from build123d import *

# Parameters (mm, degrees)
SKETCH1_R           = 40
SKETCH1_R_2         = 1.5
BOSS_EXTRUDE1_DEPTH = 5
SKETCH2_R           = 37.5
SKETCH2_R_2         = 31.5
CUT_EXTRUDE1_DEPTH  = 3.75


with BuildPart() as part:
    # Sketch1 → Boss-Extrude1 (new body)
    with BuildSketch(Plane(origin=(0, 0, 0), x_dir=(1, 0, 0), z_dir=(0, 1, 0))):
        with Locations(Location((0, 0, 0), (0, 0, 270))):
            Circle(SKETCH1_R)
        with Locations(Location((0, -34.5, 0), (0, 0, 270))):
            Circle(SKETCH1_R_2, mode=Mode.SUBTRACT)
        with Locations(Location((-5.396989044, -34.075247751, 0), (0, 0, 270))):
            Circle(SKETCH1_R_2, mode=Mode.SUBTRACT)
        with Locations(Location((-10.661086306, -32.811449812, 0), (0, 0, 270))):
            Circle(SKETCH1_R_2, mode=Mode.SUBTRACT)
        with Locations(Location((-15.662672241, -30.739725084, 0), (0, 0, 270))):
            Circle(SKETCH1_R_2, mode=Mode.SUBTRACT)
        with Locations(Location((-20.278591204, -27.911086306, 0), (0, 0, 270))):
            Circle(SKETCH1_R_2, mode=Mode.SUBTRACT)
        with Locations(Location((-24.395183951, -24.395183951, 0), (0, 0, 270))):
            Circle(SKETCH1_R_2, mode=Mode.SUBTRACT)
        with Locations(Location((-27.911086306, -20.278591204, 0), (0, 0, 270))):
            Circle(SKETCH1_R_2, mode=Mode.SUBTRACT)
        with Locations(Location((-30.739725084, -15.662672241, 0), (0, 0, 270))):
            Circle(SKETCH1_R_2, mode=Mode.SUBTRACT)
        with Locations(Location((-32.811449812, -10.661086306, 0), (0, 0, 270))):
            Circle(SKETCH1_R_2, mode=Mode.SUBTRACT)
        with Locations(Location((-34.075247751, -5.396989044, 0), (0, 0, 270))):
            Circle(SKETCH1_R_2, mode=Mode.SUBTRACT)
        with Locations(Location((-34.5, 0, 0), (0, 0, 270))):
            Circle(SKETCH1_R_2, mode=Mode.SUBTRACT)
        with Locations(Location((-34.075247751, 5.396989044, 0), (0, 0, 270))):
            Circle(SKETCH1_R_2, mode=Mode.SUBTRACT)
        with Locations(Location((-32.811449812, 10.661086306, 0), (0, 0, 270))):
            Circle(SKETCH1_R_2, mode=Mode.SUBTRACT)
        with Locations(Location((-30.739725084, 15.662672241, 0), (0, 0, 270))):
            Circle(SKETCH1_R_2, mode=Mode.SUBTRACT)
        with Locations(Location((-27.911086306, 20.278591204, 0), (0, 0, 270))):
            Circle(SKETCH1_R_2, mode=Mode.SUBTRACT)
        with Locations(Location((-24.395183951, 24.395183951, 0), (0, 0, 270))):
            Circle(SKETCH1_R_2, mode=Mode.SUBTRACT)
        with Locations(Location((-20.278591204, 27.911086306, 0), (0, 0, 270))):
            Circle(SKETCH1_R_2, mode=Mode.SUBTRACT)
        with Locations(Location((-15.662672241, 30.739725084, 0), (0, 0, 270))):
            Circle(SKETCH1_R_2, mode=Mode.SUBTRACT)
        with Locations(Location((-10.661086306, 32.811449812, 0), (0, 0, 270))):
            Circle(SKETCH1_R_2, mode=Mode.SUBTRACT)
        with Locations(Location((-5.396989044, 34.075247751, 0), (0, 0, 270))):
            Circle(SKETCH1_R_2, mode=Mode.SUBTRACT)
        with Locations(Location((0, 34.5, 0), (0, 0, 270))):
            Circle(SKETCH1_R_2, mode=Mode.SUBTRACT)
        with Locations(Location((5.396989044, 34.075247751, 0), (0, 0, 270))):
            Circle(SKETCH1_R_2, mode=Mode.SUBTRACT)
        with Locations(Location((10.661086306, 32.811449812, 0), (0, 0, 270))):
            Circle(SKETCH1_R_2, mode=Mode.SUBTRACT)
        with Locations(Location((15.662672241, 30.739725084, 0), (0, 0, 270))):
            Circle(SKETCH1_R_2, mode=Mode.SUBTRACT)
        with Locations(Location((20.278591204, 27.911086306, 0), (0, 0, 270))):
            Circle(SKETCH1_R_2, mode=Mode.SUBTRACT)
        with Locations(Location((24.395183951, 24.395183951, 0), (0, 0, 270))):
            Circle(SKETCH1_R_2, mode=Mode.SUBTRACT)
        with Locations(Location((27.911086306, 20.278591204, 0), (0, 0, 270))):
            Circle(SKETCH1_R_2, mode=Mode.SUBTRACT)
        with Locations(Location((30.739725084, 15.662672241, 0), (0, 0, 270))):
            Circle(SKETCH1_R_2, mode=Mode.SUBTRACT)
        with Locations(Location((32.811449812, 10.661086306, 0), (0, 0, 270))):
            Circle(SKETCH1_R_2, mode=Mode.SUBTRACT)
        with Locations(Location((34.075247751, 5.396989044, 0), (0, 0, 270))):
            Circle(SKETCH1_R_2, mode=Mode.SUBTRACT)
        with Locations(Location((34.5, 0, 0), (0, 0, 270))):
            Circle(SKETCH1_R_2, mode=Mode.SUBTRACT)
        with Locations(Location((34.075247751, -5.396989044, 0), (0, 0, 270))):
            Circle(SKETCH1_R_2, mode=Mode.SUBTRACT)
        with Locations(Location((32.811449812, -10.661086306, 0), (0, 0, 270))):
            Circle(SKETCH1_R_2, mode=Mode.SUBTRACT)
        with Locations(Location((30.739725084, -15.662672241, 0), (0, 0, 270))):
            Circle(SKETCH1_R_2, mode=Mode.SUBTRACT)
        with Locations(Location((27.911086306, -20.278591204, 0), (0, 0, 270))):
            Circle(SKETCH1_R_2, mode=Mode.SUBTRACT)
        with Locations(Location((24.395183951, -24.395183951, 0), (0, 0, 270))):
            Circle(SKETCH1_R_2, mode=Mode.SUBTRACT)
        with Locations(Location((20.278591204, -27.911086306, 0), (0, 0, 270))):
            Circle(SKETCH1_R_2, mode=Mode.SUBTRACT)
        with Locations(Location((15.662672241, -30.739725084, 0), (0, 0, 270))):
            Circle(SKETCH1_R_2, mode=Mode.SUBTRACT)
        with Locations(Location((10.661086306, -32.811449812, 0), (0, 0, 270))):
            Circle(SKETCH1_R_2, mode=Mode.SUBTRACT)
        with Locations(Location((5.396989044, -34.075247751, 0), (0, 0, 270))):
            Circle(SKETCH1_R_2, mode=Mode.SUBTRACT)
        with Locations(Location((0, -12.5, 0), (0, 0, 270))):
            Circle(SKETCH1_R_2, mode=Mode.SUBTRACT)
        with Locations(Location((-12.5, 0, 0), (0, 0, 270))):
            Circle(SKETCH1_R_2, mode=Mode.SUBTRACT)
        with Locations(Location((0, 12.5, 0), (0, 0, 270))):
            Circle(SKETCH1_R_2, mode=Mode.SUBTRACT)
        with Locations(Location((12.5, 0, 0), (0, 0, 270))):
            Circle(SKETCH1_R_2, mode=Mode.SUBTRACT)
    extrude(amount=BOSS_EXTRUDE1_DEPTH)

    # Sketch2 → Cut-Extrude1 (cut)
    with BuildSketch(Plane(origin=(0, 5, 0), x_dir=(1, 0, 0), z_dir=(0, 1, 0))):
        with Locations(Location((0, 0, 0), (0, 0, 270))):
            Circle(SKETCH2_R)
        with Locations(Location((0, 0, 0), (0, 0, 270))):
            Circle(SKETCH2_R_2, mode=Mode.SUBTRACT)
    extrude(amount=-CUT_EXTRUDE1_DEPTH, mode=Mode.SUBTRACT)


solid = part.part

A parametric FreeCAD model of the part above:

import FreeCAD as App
import Part
import Sketcher
from FreeCAD import Vector
Q = App.Units.Quantity

doc = App.newDocument("Part")
body = doc.addObject("PartDesign::Body", "Body")

# Sketch on XZ plane
sketch1 = body.newObject("Sketcher::SketchObject", "Sketch")
sketch1.AttachmentSupport = (doc.getObject("XZ_Plane"), [""])
sketch1.MapMode = "FlatFace"
sketch1.addGeometry(Part.Circle(Vector(0, 0, 0), Vector(0, 0, 1), 40), False)
sketch1.addGeometry(Part.Circle(Vector(-27.9, -20.3, 0), Vector(0, 0, 1), 1.5), False)
sketch1.addGeometry(Part.Circle(Vector(-20.3, -27.9, 0), Vector(0, 0, 1), 1.5), False)
sketch1.addGeometry(Part.Circle(Vector(-24.4, -24.4, 0), Vector(0, 0, 1), 1.5), False)
sketch1.addGeometry(Part.Circle(Vector(-32.8, -10.7, 0), Vector(0, 0, 1), 1.5), False)
sketch1.addGeometry(Part.Circle(Vector(-30.7, -15.7, 0), Vector(0, 0, 1), 1.5), False)
sketch1.addGeometry(Part.Circle(Vector(-34.1, -5.4, 0), Vector(0, 0, 1), 1.5), False)
sketch1.addGeometry(Part.Circle(Vector(-15.7, -30.7, 0), Vector(0, 0, 1), 1.5), False)
sketch1.addGeometry(Part.Circle(Vector(-10.7, -32.8, 0), Vector(0, 0, 1), 1.5), False)
sketch1.addGeometry(Part.Circle(Vector(-5.4, -34.1, 0), Vector(0, 0, 1), 1.5), False)
sketch1.addGeometry(Part.Circle(Vector(0, -34.5, 0), Vector(0, 0, 1), 1.5), False)
sketch1.addGeometry(Part.Circle(Vector(0, -12.5, 0), Vector(0, 0, 1), 1.5), False)
sketch1.addGeometry(Part.Circle(Vector(-34.5, 0, 0), Vector(0, 0, 1), 1.5), False)
sketch1.addGeometry(Part.Circle(Vector(-34.1, 5.4, 0), Vector(0, 0, 1), 1.5), False)
sketch1.addGeometry(Part.Circle(Vector(-32.8, 10.7, 0), Vector(0, 0, 1), 1.5), False)
sketch1.addGeometry(Part.Circle(Vector(-30.7, 15.7, 0), Vector(0, 0, 1), 1.5), False)
sketch1.addGeometry(Part.Circle(Vector(-27.9, 20.3, 0), Vector(0, 0, 1), 1.5), False)
sketch1.addGeometry(Part.Circle(Vector(-24.4, 24.4, 0), Vector(0, 0, 1), 1.5), False)
sketch1.addGeometry(Part.Circle(Vector(-20.3, 27.9, 0), Vector(0, 0, 1), 1.5), False)
sketch1.addGeometry(Part.Circle(Vector(-12.5, 0, 0), Vector(0, 0, 1), 1.5), False)
sketch1.addGeometry(Part.Circle(Vector(-15.7, 30.7, 0), Vector(0, 0, 1), 1.5), False)
sketch1.addGeometry(Part.Circle(Vector(-10.7, 32.8, 0), Vector(0, 0, 1), 1.5), False)
sketch1.addGeometry(Part.Circle(Vector(-5.4, 34.1, 0), Vector(0, 0, 1), 1.5), False)
sketch1.addGeometry(Part.Circle(Vector(5.4, -34.1, 0), Vector(0, 0, 1), 1.5), False)
sketch1.addGeometry(Part.Circle(Vector(10.7, -32.8, 0), Vector(0, 0, 1), 1.5), False)
sketch1.addGeometry(Part.Circle(Vector(15.7, -30.7, 0), Vector(0, 0, 1), 1.5), False)
sketch1.addGeometry(Part.Circle(Vector(20.3, -27.9, 0), Vector(0, 0, 1), 1.5), False)
sketch1.addGeometry(Part.Circle(Vector(24.4, -24.4, 0), Vector(0, 0, 1), 1.5), False)
sketch1.addGeometry(Part.Circle(Vector(27.9, -20.3, 0), Vector(0, 0, 1), 1.5), False)
sketch1.addGeometry(Part.Circle(Vector(30.7, -15.7, 0), Vector(0, 0, 1), 1.5), False)
sketch1.addGeometry(Part.Circle(Vector(32.8, -10.7, 0), Vector(0, 0, 1), 1.5), False)
sketch1.addGeometry(Part.Circle(Vector(34.1, -5.4, 0), Vector(0, 0, 1), 1.5), False)
sketch1.addGeometry(Part.Circle(Vector(34.5, 0, 0), Vector(0, 0, 1), 1.5), False)
sketch1.addGeometry(Part.Circle(Vector(0, 12.5, 0), Vector(0, 0, 1), 1.5), False)
sketch1.addGeometry(Part.Circle(Vector(12.5, 0, 0), Vector(0, 0, 1), 1.5), False)
sketch1.addGeometry(Part.Circle(Vector(0, 34.5, 0), Vector(0, 0, 1), 1.5), False)
sketch1.addGeometry(Part.Circle(Vector(5.4, 34.1, 0), Vector(0, 0, 1), 1.5), False)
sketch1.addGeometry(Part.Circle(Vector(10.7, 32.8, 0), Vector(0, 0, 1), 1.5), False)
sketch1.addGeometry(Part.Circle(Vector(15.7, 30.7, 0), Vector(0, 0, 1), 1.5), False)
sketch1.addGeometry(Part.Circle(Vector(34.1, 5.4, 0), Vector(0, 0, 1), 1.5), False)
sketch1.addGeometry(Part.Circle(Vector(30.7, 15.7, 0), Vector(0, 0, 1), 1.5), False)
sketch1.addGeometry(Part.Circle(Vector(32.8, 10.7, 0), Vector(0, 0, 1), 1.5), False)
sketch1.addGeometry(Part.Circle(Vector(24.4, 24.4, 0), Vector(0, 0, 1), 1.5), False)
sketch1.addGeometry(Part.Circle(Vector(20.3, 27.9, 0), Vector(0, 0, 1), 1.5), False)
sketch1.addGeometry(Part.Circle(Vector(27.9, 20.3, 0), Vector(0, 0, 1), 1.5), False)
sketch1.addConstraint(Sketcher.Constraint("Coincident", 0, 3, -1, 1))
sketch1.addConstraint(Sketcher.Constraint("Equal", 1, 2))
sketch1.addConstraint(Sketcher.Constraint("Equal", 2, 3))
sketch1.addConstraint(Sketcher.Constraint("Equal", 3, 4))
sketch1.addConstraint(Sketcher.Constraint("Equal", 4, 5))
sketch1.addConstraint(Sketcher.Constraint("Equal", 5, 6))
sketch1.addConstraint(Sketcher.Constraint("Equal", 6, 7))
sketch1.addConstraint(Sketcher.Constraint("Equal", 7, 8))
sketch1.addConstraint(Sketcher.Constraint("Equal", 8, 9))
sketch1.addConstraint(Sketcher.Constraint("Equal", 9, 10))
sketch1.addConstraint(Sketcher.Constraint("Equal", 10, 11))
sketch1.addConstraint(Sketcher.Constraint("Equal", 11, 12))
sketch1.addConstraint(Sketcher.Constraint("Equal", 12, 13))
sketch1.addConstraint(Sketcher.Constraint("Equal", 13, 14))
sketch1.addConstraint(Sketcher.Constraint("Equal", 14, 15))
sketch1.addConstraint(Sketcher.Constraint("Equal", 15, 16))
sketch1.addConstraint(Sketcher.Constraint("Equal", 16, 17))
sketch1.addConstraint(Sketcher.Constraint("Equal", 17, 18))
sketch1.addConstraint(Sketcher.Constraint("Equal", 18, 19))
sketch1.addConstraint(Sketcher.Constraint("Equal", 19, 20))
sketch1.addConstraint(Sketcher.Constraint("Equal", 20, 21))
sketch1.addConstraint(Sketcher.Constraint("Equal", 21, 22))
sketch1.addConstraint(Sketcher.Constraint("Equal", 22, 23))
sketch1.addConstraint(Sketcher.Constraint("Equal", 23, 24))
sketch1.addConstraint(Sketcher.Constraint("Equal", 24, 25))
sketch1.addConstraint(Sketcher.Constraint("Equal", 25, 26))
sketch1.addConstraint(Sketcher.Constraint("Equal", 26, 27))
sketch1.addConstraint(Sketcher.Constraint("Equal", 27, 28))
sketch1.addConstraint(Sketcher.Constraint("Equal", 28, 29))
sketch1.addConstraint(Sketcher.Constraint("Equal", 29, 30))
sketch1.addConstraint(Sketcher.Constraint("Equal", 30, 31))
sketch1.addConstraint(Sketcher.Constraint("Equal", 31, 32))
sketch1.addConstraint(Sketcher.Constraint("Equal", 32, 33))
sketch1.addConstraint(Sketcher.Constraint("Equal", 33, 34))
sketch1.addConstraint(Sketcher.Constraint("Equal", 34, 35))
sketch1.addConstraint(Sketcher.Constraint("Equal", 35, 36))
sketch1.addConstraint(Sketcher.Constraint("Equal", 36, 37))
sketch1.addConstraint(Sketcher.Constraint("Equal", 37, 38))
sketch1.addConstraint(Sketcher.Constraint("Equal", 38, 39))
sketch1.addConstraint(Sketcher.Constraint("Equal", 39, 40))
sketch1.addConstraint(Sketcher.Constraint("Equal", 40, 41))
sketch1.addConstraint(Sketcher.Constraint("Equal", 41, 42))
sketch1.addConstraint(Sketcher.Constraint("Equal", 42, 43))
sketch1.addConstraint(Sketcher.Constraint("Equal", 43, 44))
sketch1.addConstraint(Sketcher.Constraint("Symmetric", 22, 3, 23, 3, -1, 1))
sketch1.addConstraint(Sketcher.Constraint("Symmetric", 21, 3, 24, 3, -1, 1))
sketch1.addConstraint(Sketcher.Constraint("Symmetric", 20, 3, 25, 3, -1, 1))
sketch1.addConstraint(Sketcher.Constraint("Symmetric", 18, 3, 26, 3, -1, 1))
sketch1.addConstraint(Sketcher.Constraint("Symmetric", 17, 3, 27, 3, -1, 1))
sketch1.addConstraint(Sketcher.Constraint("Symmetric", 16, 3, 28, 3, -1, 1))
sketch1.addConstraint(Sketcher.Constraint("Symmetric", 15, 3, 29, 3, -1, 1))
sketch1.addConstraint(Sketcher.Constraint("Symmetric", 14, 3, 30, 3, -1, 1))
sketch1.addConstraint(Sketcher.Constraint("Symmetric", 13, 3, 31, 3, -1, 1))
sketch1.addConstraint(Sketcher.Constraint("Symmetric", 12, 3, 32, 3, -1, 1))
sketch1.addConstraint(Sketcher.Constraint("Symmetric", 11, 3, 33, 3, -1, 1))
sketch1.addConstraint(Sketcher.Constraint("Symmetric", 19, 3, 34, 3, -1, 1))
sketch1.addConstraint(Sketcher.Constraint("Symmetric", 10, 3, 35, 3, -1, 1))
sketch1.addConstraint(Sketcher.Constraint("Symmetric", 9, 3, 36, 3, -1, 1))
sketch1.addConstraint(Sketcher.Constraint("Symmetric", 8, 3, 37, 3, -1, 1))
sketch1.addConstraint(Sketcher.Constraint("Symmetric", 7, 3, 38, 3, -1, 1))
sketch1.addConstraint(Sketcher.Constraint("Symmetric", 6, 3, 39, 3, -1, 1))
sketch1.addConstraint(Sketcher.Constraint("Symmetric", 5, 3, 40, 3, -1, 1))
sketch1.addConstraint(Sketcher.Constraint("Symmetric", 4, 3, 41, 3, -1, 1))
sketch1.addConstraint(Sketcher.Constraint("Symmetric", 3, 3, 42, 3, -1, 1))
sketch1.addConstraint(Sketcher.Constraint("Symmetric", 2, 3, 43, 3, -1, 1))
sketch1.addConstraint(Sketcher.Constraint("Symmetric", 1, 3, 44, 3, -1, 1))
sketch1.addConstraint(Sketcher.Constraint("Symmetric", 9, 3, 23, 3, -2))
sketch1.addConstraint(Sketcher.Constraint("Symmetric", 8, 3, 24, 3, -2))
sketch1.addConstraint(Sketcher.Constraint("Symmetric", 7, 3, 25, 3, -2))
sketch1.addConstraint(Sketcher.Constraint("Symmetric", 2, 3, 26, 3, -2))
sketch1.addConstraint(Sketcher.Constraint("Symmetric", 3, 3, 27, 3, -2))
sketch1.addConstraint(Sketcher.Constraint("Symmetric", 1, 3, 28, 3, -2))
sketch1.addConstraint(Sketcher.Constraint("Symmetric", 5, 3, 29, 3, -2))
sketch1.addConstraint(Sketcher.Constraint("Symmetric", 4, 3, 30, 3, -2))
sketch1.addConstraint(Sketcher.Constraint("Symmetric", 6, 3, 31, 3, -2))
sketch1.addConstraint(Sketcher.Constraint("PointOnObject", 10, 3, -2))
sketch1.addConstraint(Sketcher.Constraint("PointOnObject", 11, 3, -2))
sketch1.addConstraint(Sketcher.Constraint("PointOnObject", 12, 3, -1))
sketch1.addConstraint(Sketcher.Constraint("PointOnObject", 19, 3, -1))
sketch1.addConstraint(Sketcher.Constraint("Diameter", 0, Q("80 mm")))
sketch1.addConstraint(Sketcher.Constraint("Diameter", 1, Q("3 mm")))
sketch1.addConstraint(Sketcher.Constraint("DistanceY", 10, 3, 11, 3, Q("22 mm")))
sketch1.addConstraint(Sketcher.Constraint("DistanceX", 12, 3, 19, 3, Q("22 mm")))
sketch1.addConstraint(Sketcher.Constraint("DistanceY", 10, 3, -1, 1, Q("34.5 mm")))
sketch1.addConstraint(Sketcher.Constraint("DistanceX", 12, 3, -1, 1, Q("34.5 mm")))
sketch1.addConstraint(Sketcher.Constraint("DistanceY", 2, 3, 4, 3, Q("17.25 mm")))
sketch1.addConstraint(Sketcher.Constraint("DistanceX", 1, 3, 8, 3, Q("17.25 mm")))
sketch1.addConstraint(Sketcher.Constraint("DistanceY", 1, 3, -1, 1, Q("20.278591 mm")))
sketch1.addConstraint(Sketcher.Constraint("DistanceX", 2, 3, -1, 1, Q("20.278591 mm")))
sketch1.addConstraint(Sketcher.Constraint("DistanceX", 4, 3, -1, 1, Q("32.81145 mm")))
sketch1.addConstraint(Sketcher.Constraint("DistanceY", 6, 3, -1, 1, Q("5.396989 mm")))
sketch1.addConstraint(Sketcher.Constraint("DistanceY", 8, 3, -1, 1, Q("32.81145 mm")))
sketch1.addConstraint(Sketcher.Constraint("DistanceX", 9, 3, -1, 1, Q("5.396989 mm")))
sketch1.addConstraint(Sketcher.Constraint("DistanceX", 5, 3, 1, 3, Q("2.828639 mm")))
sketch1.addConstraint(Sketcher.Constraint("DistanceY", 1, 3, 5, 3, Q("4.615919 mm")))
sketch1.addConstraint(Sketcher.Constraint("DistanceX", 5, 3, 3, 3, Q("6.344541 mm")))
sketch1.addConstraint(Sketcher.Constraint("DistanceY", 3, 3, 5, 3, Q("8.732512 mm")))
sketch1.addConstraint(Sketcher.Constraint("DistanceX", 6, 3, 1, 3, Q("6.164161 mm")))
sketch1.addConstraint(Sketcher.Constraint("DistanceX", 2, 3, 7, 3, Q("4.615919 mm")))
sketch1.addConstraint(Sketcher.Constraint("DistanceY", 7, 3, 2, 3, Q("2.828639 mm")))
sketch1.addConstraint(Sketcher.Constraint("DistanceX", 3, 3, 7, 3, Q("8.732512 mm")))
sketch1.addConstraint(Sketcher.Constraint("DistanceY", 7, 3, 3, 3, Q("6.344541 mm")))
sketch1.addConstraint(Sketcher.Constraint("DistanceY", 9, 3, 2, 3, Q("6.164161 mm")))
pad1 = body.newObject("PartDesign::Pad", "Pad")
pad1.Profile = sketch1
pad1.Length = 5
pad1.Reversed = True

# Sketch on XZ plane
sketch2 = body.newObject("Sketcher::SketchObject", "Sketch001")
sketch2.AttachmentSupport = (doc.getObject("XZ_Plane"), [""])
sketch2.MapMode = "FlatFace"
sketch2.AttachmentOffset = App.Placement(Vector(0, 0, -5), App.Rotation())
sketch2.addGeometry(Part.Circle(Vector(0, 0, 0), Vector(0, 0, 1), 38), False)
sketch2.addGeometry(Part.Circle(Vector(0, 0, 0), Vector(0, 0, 1), 32), False)
sketch2.addConstraint(Sketcher.Constraint("Coincident", 0, 3, -1, 1))
sketch2.addConstraint(Sketcher.Constraint("Coincident", 1, 3, -1, 1))
sketch2.addConstraint(Sketcher.Constraint("Diameter", 0, Q("75 mm")))
sketch2.addConstraint(Sketcher.Constraint("Diameter", 1, Q("63 mm")))
pocket1 = body.newObject("PartDesign::Pocket", "Pocket")
pocket1.Profile = sketch2
pocket1.Length = 3.75
pocket1.Reversed = True

doc.recompute()
